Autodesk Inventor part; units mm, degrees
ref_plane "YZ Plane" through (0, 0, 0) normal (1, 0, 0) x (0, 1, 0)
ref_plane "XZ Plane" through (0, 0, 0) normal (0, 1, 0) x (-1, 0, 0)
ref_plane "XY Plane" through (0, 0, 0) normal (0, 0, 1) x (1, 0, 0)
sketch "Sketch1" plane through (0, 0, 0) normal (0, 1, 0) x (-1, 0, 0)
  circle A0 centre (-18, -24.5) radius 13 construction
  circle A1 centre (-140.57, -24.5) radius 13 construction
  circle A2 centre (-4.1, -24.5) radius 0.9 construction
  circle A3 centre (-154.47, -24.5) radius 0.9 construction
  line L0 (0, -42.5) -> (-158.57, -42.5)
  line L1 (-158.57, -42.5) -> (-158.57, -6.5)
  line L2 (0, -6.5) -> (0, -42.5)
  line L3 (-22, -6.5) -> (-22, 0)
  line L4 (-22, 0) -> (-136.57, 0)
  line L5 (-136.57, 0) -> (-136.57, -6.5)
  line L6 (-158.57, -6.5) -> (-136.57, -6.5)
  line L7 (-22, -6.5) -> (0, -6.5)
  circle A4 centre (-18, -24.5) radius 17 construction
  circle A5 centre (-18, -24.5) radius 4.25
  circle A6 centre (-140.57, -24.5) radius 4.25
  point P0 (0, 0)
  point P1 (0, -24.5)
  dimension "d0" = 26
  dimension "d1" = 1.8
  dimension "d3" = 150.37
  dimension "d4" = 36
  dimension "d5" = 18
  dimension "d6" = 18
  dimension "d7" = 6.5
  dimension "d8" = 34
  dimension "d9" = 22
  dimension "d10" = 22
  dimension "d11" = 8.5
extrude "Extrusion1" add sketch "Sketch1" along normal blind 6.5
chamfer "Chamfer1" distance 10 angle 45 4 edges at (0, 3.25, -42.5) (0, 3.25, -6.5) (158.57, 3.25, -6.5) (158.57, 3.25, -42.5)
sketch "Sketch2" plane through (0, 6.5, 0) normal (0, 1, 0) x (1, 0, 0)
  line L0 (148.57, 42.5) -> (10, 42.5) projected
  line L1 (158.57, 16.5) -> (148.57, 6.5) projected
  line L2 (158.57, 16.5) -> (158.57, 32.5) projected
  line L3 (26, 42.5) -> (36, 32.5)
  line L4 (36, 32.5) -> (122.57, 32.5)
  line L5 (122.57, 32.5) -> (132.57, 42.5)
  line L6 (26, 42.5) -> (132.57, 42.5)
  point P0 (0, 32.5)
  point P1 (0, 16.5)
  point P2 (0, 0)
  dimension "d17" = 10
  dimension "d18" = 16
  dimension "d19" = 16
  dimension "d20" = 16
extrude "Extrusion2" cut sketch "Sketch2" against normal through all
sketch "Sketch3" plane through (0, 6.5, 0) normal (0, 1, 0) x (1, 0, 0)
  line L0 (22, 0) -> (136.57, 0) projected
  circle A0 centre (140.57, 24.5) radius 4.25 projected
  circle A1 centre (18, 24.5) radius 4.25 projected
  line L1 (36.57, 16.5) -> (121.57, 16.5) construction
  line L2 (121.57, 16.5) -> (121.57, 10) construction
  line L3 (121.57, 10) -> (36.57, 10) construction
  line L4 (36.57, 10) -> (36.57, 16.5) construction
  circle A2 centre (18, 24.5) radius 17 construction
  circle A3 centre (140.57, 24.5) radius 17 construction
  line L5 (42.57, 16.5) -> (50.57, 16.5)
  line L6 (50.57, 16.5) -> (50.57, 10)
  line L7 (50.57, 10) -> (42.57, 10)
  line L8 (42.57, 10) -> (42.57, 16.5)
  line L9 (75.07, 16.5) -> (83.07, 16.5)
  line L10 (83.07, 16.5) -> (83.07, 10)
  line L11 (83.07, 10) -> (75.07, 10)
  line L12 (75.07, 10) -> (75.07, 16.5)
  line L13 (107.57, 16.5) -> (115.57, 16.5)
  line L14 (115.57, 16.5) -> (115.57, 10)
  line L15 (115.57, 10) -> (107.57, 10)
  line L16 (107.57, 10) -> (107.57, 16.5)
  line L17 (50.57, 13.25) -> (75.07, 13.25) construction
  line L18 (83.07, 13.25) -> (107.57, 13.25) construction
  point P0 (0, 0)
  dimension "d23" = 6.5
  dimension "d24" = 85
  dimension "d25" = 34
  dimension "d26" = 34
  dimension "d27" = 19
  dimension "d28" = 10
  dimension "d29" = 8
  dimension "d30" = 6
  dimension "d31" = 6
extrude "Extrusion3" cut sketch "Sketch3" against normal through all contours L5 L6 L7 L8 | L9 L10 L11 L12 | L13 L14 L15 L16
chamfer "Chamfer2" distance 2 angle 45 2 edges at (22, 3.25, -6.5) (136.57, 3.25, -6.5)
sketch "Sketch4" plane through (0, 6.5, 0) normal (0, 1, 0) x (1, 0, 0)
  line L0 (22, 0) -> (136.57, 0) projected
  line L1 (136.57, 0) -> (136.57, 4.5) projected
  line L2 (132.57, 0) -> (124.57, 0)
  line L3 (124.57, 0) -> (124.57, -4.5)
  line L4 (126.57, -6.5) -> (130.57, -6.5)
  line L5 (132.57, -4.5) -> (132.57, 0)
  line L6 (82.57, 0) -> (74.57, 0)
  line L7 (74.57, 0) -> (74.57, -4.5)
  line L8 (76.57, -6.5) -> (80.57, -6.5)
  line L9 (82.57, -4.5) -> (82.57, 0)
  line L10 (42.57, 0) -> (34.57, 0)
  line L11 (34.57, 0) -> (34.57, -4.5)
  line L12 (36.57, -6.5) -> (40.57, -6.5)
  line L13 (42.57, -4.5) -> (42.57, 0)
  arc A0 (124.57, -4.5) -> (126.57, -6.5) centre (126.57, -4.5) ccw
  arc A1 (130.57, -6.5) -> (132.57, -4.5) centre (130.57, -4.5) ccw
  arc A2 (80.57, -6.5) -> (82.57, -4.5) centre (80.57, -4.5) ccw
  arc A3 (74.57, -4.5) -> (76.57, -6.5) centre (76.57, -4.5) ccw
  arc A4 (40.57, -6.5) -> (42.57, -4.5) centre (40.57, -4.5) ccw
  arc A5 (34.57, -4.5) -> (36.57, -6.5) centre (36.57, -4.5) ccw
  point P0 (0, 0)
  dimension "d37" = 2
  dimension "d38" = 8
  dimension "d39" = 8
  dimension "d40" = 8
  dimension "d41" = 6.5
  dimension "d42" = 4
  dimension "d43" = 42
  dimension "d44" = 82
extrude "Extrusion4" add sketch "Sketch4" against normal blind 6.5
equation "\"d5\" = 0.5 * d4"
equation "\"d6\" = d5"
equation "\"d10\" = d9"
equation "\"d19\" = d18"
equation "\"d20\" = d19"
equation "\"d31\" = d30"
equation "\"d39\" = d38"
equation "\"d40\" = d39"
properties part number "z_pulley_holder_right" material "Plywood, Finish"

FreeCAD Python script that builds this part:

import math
import FreeCAD as App
import Part
import Sketcher


def edges_at(feature, points):
    """Names of the edges that pass closest to the given points."""
    edges = feature.Shape.Edges
    near = lambda p: min(range(len(edges)), key=lambda i: edges[i].distToShape(Part.Vertex(*p))[0])
    return sorted({f"Edge{near(p) + 1}" for p in points})

doc = App.newDocument("Part")
params = doc.addObject("Spreadsheet::Sheet", "Params")
for row, (alias, value) in enumerate([
    ("sketch1_diameter", "8.5 mm"),
    ("sketch1_width", "22 mm"),
    ("sketch1_height", "36 mm"),
    ("sketch1_height2", "6.5 mm"),
    ("sketch1_width2", "158.57 mm"),
    ("pad1_length", "6.5 mm"),
    ("chamfer_size", "10 mm"),
    ("sketch2_width", "106.57 mm"),
    ("sketch3_width", "8 mm"),
    ("sketch3_height", "6.5 mm"),
    ("chamfer2_size", "2 mm"),
    ("sketch4_radius", "2 mm"),
    ("sketch4_width", "8 mm"),
    ("pad2_length", "6.5 mm"),
], start=1):
    params.set(f"A{row}", alias)
    params.set(f"B{row}", "=" + value)
    params.setAlias(f"B{row}", alias)

body = doc.addObject("PartDesign::Body", "Body")

# Sketch on XZ plane
sketch1 = body.newObject("Sketcher::SketchObject", "Sketch")
sketch1.AttachmentSupport = (doc.getObject("XZ_Plane"), [""])
sketch1.MapMode = "FlatFace"
sketch1.addGeometry([
    Part.LineSegment(App.Vector(158.6, -42.5, 0), App.Vector(0, -42.5, 0)),  # 0
    Part.LineSegment(App.Vector(0, -42.5, 0), App.Vector(0, -6.5, 0)),  # 1
    Part.LineSegment(App.Vector(0, -6.5, 0), App.Vector(22, -6.5, 0)),  # 2
    Part.LineSegment(App.Vector(22, -6.5, 0), App.Vector(22, 0, 0)),  # 3
    Part.LineSegment(App.Vector(22, 0, 0), App.Vector(136.6, 0, 0)),  # 4
    Part.LineSegment(App.Vector(136.6, 0, 0), App.Vector(136.6, -6.5, 0)),  # 5
    Part.LineSegment(App.Vector(136.6, -6.5, 0), App.Vector(158.6, -6.5, 0)),  # 6
    Part.LineSegment(App.Vector(158.6, -6.5, 0), App.Vector(158.6, -42.5, 0)),  # 7
    Part.Circle(App.Vector(140.6, -24.5, 0), App.Vector(0, 0, 1), 4.2),  # 8
    Part.Circle(App.Vector(18, -24.5, 0), App.Vector(0, 0, 1), 4.2),  # 9
], False)
sketch1.addConstraint([
    Sketcher.Constraint("Coincident", 0, 2, 1, 1),
    Sketcher.Constraint("Coincident", 1, 2, 2, 1),
    Sketcher.Constraint("Coincident", 2, 2, 3, 1),
    Sketcher.Constraint("Coincident", 3, 2, 4, 1),
    Sketcher.Constraint("Coincident", 4, 2, 5, 1),
    Sketcher.Constraint("Coincident", 5, 2, 6, 1),
    Sketcher.Constraint("Coincident", 6, 2, 7, 1),
    Sketcher.Constraint("Coincident", 7, 2, 0, 1),
    Sketcher.Constraint("Horizontal", 0),
    Sketcher.Constraint("Vertical", 1),
    Sketcher.Constraint("Horizontal", 2),
    Sketcher.Constraint("Vertical", 3),
    Sketcher.Constraint("Horizontal", 4),
    Sketcher.Constraint("Vertical", 5),
    Sketcher.Constraint("Horizontal", 6),
    Sketcher.Constraint("Vertical", 7),
    Sketcher.Constraint("Equal", 8, 9),
    Sketcher.Constraint("PointOnObject", 0, 2, -2),
    Sketcher.Constraint("PointOnObject", 3, 2, -1),
    Sketcher.Constraint("Horizontal", 8, 3, 9, 3),
    Sketcher.Constraint("Horizontal", 2, 2, 5, 2),
    Sketcher.Constraint("Equal", 2, 6),
    Sketcher.Constraint("Diameter", 8, 8.5),
    Sketcher.Constraint("DistanceX", 2, 1, 2, 2, 22.0),
    Sketcher.Constraint("DistanceY", 1, 1, 1, 2, 36.0),
    Sketcher.Constraint("DistanceY", 3, 1, 3, 2, 6.5),
    Sketcher.Constraint("DistanceX", -1, 1, 9, 3, 18.0),
    Sketcher.Constraint("DistanceY", 0, 2, 9, 3, 18.0),
    Sketcher.Constraint("DistanceX", 8, 3, 6, 2, 18.0),
    Sketcher.Constraint("DistanceX", 0, 2, 0, 1, 158.57),
])
sketch1.setExpression("Constraints[22]", "Params.sketch1_diameter")
sketch1.setExpression("Constraints[23]", "Params.sketch1_width")
sketch1.setExpression("Constraints[24]", "Params.sketch1_height")
sketch1.setExpression("Constraints[25]", "Params.sketch1_height2")
sketch1.setExpression("Constraints[29]", "Params.sketch1_width2")
pad1 = body.newObject("PartDesign::Pad", "Pad")
pad1.Profile = sketch1
pad1.setExpression("Length", "Params.pad1_length")
pad1.Reversed = True
doc.recompute()

chamfer = body.newObject("PartDesign::Chamfer", "Chamfer")
chamfer.Base = (pad1, edges_at(pad1, [
    (0, 3.25, -42.5),
    (0, 3.25, -6.5),
    (158.57, 3.25, -6.5),
    (158.57, 3.25, -42.5),
]))
chamfer.setExpression("Size", "Params.chamfer_size")

# Sketch on XZ plane
sketch2 = body.newObject("Sketcher::SketchObject", "Sketch001")
sketch2.AttachmentSupport = (doc.getObject("XZ_Plane"), [""])
sketch2.MapMode = "FlatFace"
sketch2.AttachmentOffset = App.Placement(App.Vector(0, 0, -6.5), App.Rotation())
sketch2.addGeometry([
    Part.LineSegment(App.Vector(123, -32, 0), App.Vector(133, -42, 0)),
    Part.LineSegment(App.Vector(133, -42, 0), App.Vector(26, -42, 0)),
    Part.LineSegment(App.Vector(26, -42, 0), App.Vector(36, -32, 0)),
    Part.LineSegment(App.Vector(36, -32, 0), App.Vector(123, -32, 0)),
], False)
sketch2.addConstraint([
    Sketcher.Constraint("Coincident", 0, 2, 1, 1),
    Sketcher.Constraint("Coincident", 1, 2, 2, 1),
    Sketcher.Constraint("Coincident", 2, 2, 3, 1),
    Sketcher.Constraint("Coincident", 3, 2, 0, 1),
    Sketcher.Constraint("Horizontal", 1),
    Sketcher.Constraint("Horizontal", 3),
    Sketcher.Constraint("Perpendicular", 0, 2),
    Sketcher.Constraint("Equal", 0, 2),
    Sketcher.Constraint("DistanceX", 1, 2, 2, 2, 10.0),
    Sketcher.Constraint("DistanceX", -1, 1, 1, 2, 26.0),
    Sketcher.Constraint("DistanceX", 1, 2, 1, 1, 106.57),
    Sketcher.Constraint("DistanceY", 0, 2, -1, 1, 42.5),
])
sketch2.setExpression("Constraints[10]", "Params.sketch2_width")
pocket1 = body.newObject("PartDesign::Pocket", "Pocket")
pocket1.Profile = sketch2
pocket1.Type = "ThroughAll"
pocket1.Reversed = True

# Sketch on XZ plane
sketch3 = body.newObject("Sketcher::SketchObject", "Sketch002")
sketch3.AttachmentSupport = (doc.getObject("XZ_Plane"), [""])
sketch3.MapMode = "FlatFace"
sketch3.AttachmentOffset = App.Placement(App.Vector(0, 0, -6.5), App.Rotation())
sketch3.addGeometry([
    Part.LineSegment(App.Vector(51, -16, 0), App.Vector(43, -16, 0)),  # 0
    Part.LineSegment(App.Vector(43, -16, 0), App.Vector(43, -10, 0)),  # 1
    Part.LineSegment(App.Vector(43, -10, 0), App.Vector(51, -10, 0)),  # 2
    Part.LineSegment(App.Vector(51, -10, 0), App.Vector(51, -16, 0)),  # 3
    Part.LineSegment(App.Vector(83, -16, 0), App.Vector(75, -16, 0)),  # 4
    Part.LineSegment(App.Vector(75, -16, 0), App.Vector(75, -10, 0)),  # 5
    Part.LineSegment(App.Vector(75, -10, 0), App.Vector(83, -10, 0)),  # 6
    Part.LineSegment(App.Vector(83, -10, 0), App.Vector(83, -16, 0)),  # 7
    Part.LineSegment(App.Vector(116, -16, 0), App.Vector(108, -16, 0)),  # 8
    Part.LineSegment(App.Vector(108, -16, 0), App.Vector(108, -10, 0)),  # 9
    Part.LineSegment(App.Vector(108, -10, 0), App.Vector(116, -10, 0)),  # 10
    Part.LineSegment(App.Vector(116, -10, 0), App.Vector(116, -16, 0)),  # 11
], False)
sketch3.addConstraint([
    Sketcher.Constraint("Coincident", 0, 2, 1, 1),
    Sketcher.Constraint("Coincident", 1, 2, 2, 1),
    Sketcher.Constraint("Coincident", 2, 2, 3, 1),
    Sketcher.Constraint("Coincident", 3, 2, 0, 1),
    Sketcher.Constraint("Coincident", 4, 2, 5, 1),
    Sketcher.Constraint("Coincident", 5, 2, 6, 1),
    Sketcher.Constraint("Coincident", 6, 2, 7, 1),
    Sketcher.Constraint("Coincident", 7, 2, 4, 1),
    Sketcher.Constraint("Coincident", 8, 2, 9, 1),
    Sketcher.Constraint("Coincident", 9, 2, 10, 1),
    Sketcher.Constraint("Coincident", 10, 2, 11, 1),
    Sketcher.Constraint("Coincident", 11, 2, 8, 1),
    Sketcher.Constraint("Horizontal", 0),
    Sketcher.Constraint("Vertical", 1),
    Sketcher.Constraint("Horizontal", 2),
    Sketcher.Constraint("Vertical", 3),
    Sketcher.Constraint("Horizontal", 4),
    Sketcher.Constraint("Vertical", 5),
    Sketcher.Constraint("Horizontal", 6),
    Sketcher.Constraint("Vertical", 7),
    Sketcher.Constraint("Horizontal", 8),
    Sketcher.Constraint("Vertical", 9),
    Sketcher.Constraint("Horizontal", 10),
    Sketcher.Constraint("Vertical", 11),
    Sketcher.Constraint("Horizontal", 3, 2, 4, 2),
    Sketcher.Constraint("Horizontal", 2, 2, 5, 2),
    Sketcher.Constraint("Horizontal", 7, 2, 8, 2),
    Sketcher.Constraint("Horizontal", 6, 2, 9, 2),
    Sketcher.Constraint("Equal", 2, 4),
    Sketcher.Constraint("Equal", 6, 8),
    Sketcher.Constraint("DistanceX", 0, 2, 0, 1, 8.0),
    Sketcher.Constraint("DistanceY", 1, 1, 1, 2, 6.5),
    Sketcher.Constraint("DistanceY", 1, 2, -1, 1, 10.0),
    Sketcher.Constraint("DistanceX", 3, 2, 8, 2, 57.0),
    Sketcher.Constraint("DistanceX", 3, 2, 4, 2, 24.5),
    Sketcher.Constraint("DistanceX", -1, 1, 0, 2, 42.57),
])
sketch3.setExpression("Constraints[30]", "Params.sketch3_width")
sketch3.setExpression("Constraints[31]", "Params.sketch3_height")
pocket2 = body.newObject("PartDesign::Pocket", "Pocket001")
pocket2.Profile = sketch3
pocket2.Type = "ThroughAll"
pocket2.Reversed = True
doc.recompute()

chamfer2 = body.newObject("PartDesign::Chamfer", "Chamfer001")
chamfer2.Base = (pocket2, edges_at(pocket2, [(22, 3.25, -6.5), (136.57, 3.25, -6.5)]))
chamfer2.setExpression("Size", "Params.chamfer2_size")

# Sketch on XZ plane
sketch4 = body.newObject("Sketcher::SketchObject", "Sketch003")
sketch4.AttachmentSupport = (doc.getObject("XZ_Plane"), [""])
sketch4.MapMode = "FlatFace"
sketch4.AttachmentOffset = App.Placement(App.Vector(0, 0, -6.5), App.Rotation())
sketch4.addGeometry([
    Part.LineSegment(App.Vector(132.6, 0, 0), App.Vector(124.6, 0, 0)),  # 0
    Part.LineSegment(App.Vector(124.6, 0, 0), App.Vector(124.6, 4.5, 0)),  # 1
    Part.ArcOfCircle(Part.Circle(App.Vector(126.6, 4.5, 0), App.Vector(0, 0, 1), 2), math.radians(90), math.radians(180)),  # 2
    Part.LineSegment(App.Vector(126.6, 6.5, 0), App.Vector(130.6, 6.5, 0)),  # 3
    Part.ArcOfCircle(Part.Circle(App.Vector(130.6, 4.5, 0), App.Vector(0, 0, 1), 2), math.radians(0), math.radians(90)),  # 4
    Part.LineSegment(App.Vector(132.6, 4.5, 0), App.Vector(132.6, 0, 0)),  # 5
    Part.LineSegment(App.Vector(82.6, 0, 0), App.Vector(74.6, 0, 0)),  # 6
    Part.LineSegment(App.Vector(74.6, 0, 0), App.Vector(74.6, 4.5, 0)),  # 7
    Part.ArcOfCircle(Part.Circle(App.Vector(76.6, 4.5, 0), App.Vector(0, 0, 1), 2), math.radians(90), math.radians(180)),  # 8
    Part.LineSegment(App.Vector(76.6, 6.5, 0), App.Vector(80.6, 6.5, 0)),  # 9
    Part.ArcOfCircle(Part.Circle(App.Vector(80.6, 4.5, 0), App.Vector(0, 0, 1), 2), math.radians(0), math.radians(90)),  # 10
    Part.LineSegment(App.Vector(82.6, 4.5, 0), App.Vector(82.6, 0, 0)),  # 11
    Part.LineSegment(App.Vector(42.6, 0, 0), App.Vector(34.6, 0, 0)),  # 12
    Part.LineSegment(App.Vector(34.6, 0, 0), App.Vector(34.6, 4.5, 0)),  # 13
    Part.ArcOfCircle(Part.Circle(App.Vector(36.6, 4.5, 0), App.Vector(0, 0, 1), 2), math.radians(90), math.radians(180)),  # 14
    Part.LineSegment(App.Vector(36.6, 6.5, 0), App.Vector(40.6, 6.5, 0)),  # 15
    Part.ArcOfCircle(Part.Circle(App.Vector(40.6, 4.5, 0), App.Vector(0, 0, 1), 2), math.radians(0), math.radians(90)),  # 16
    Part.LineSegment(App.Vector(42.6, 4.5, 0), App.Vector(42.6, 0, 0)),  # 17
], False)
sketch4.addConstraint([
    Sketcher.Constraint("Coincident", 0, 2, 1, 1),
    Sketcher.Constraint("Tangent", 1, 2, 2, 2),
    Sketcher.Constraint("Tangent", 2, 1, 3, 1),
    Sketcher.Constraint("Tangent", 3, 2, 4, 2),
    Sketcher.Constraint("Tangent", 4, 1, 5, 1),
    Sketcher.Constraint("Coincident", 5, 2, 0, 1),
    Sketcher.Constraint("Coincident", 6, 2, 7, 1),
    Sketcher.Constraint("Tangent", 7, 2, 8, 2),
    Sketcher.Constraint("Tangent", 8, 1, 9, 1),
    Sketcher.Constraint("Tangent", 9, 2, 10, 2),
    Sketcher.Constraint("Tangent", 10, 1, 11, 1),
    Sketcher.Constraint("Coincident", 11, 2, 6, 1),
    Sketcher.Constraint("Coincident", 12, 2, 13, 1),
    Sketcher.Constraint("Tangent", 13, 2, 14, 2),
    Sketcher.Constraint("Tangent", 14, 1, 15, 1),
    Sketcher.Constraint("Tangent", 15, 2, 16, 2),
    Sketcher.Constraint("Tangent", 16, 1, 17, 1),
    Sketcher.Constraint("Coincident", 17, 2, 12, 1),
    Sketcher.Constraint("Horizontal", 0),
    Sketcher.Constraint("Vertical", 1),
    Sketcher.Constraint("Horizontal", 3),
    Sketcher.Constraint("Vertical", 5),
    Sketcher.Constraint("Horizontal", 6),
    Sketcher.Constraint("Vertical", 7),
    Sketcher.Constraint("Horizontal", 9),
    Sketcher.Constraint("Vertical", 11),
    Sketcher.Constraint("Horizontal", 12),
    Sketcher.Constraint("Vertical", 13),
    Sketcher.Constraint("Horizontal", 15),
    Sketcher.Constraint("Vertical", 17),
    Sketcher.Constraint("Equal", 2, 4),
    Sketcher.Constraint("Equal", 4, 8),
    Sketcher.Constraint("Equal", 8, 10),
    Sketcher.Constraint("Equal", 10, 14),
    Sketcher.Constraint("Equal", 14, 16),
    Sketcher.Constraint("PointOnObject", 0, 2, -1),
    Sketcher.Constraint("PointOnObject", 6, 2, -1),
    Sketcher.Constraint("PointOnObject", 12, 2, -1),
    Sketcher.Constraint("Horizontal", 4, 3, 8, 3),
    Sketcher.Constraint("Horizontal", 10, 3, 14, 3),
    Sketcher.Constraint("Equal", 0, 6),
    Sketcher.Constraint("Equal", 6, 12),
    Sketcher.Constraint("Radius", 2, 2.0),
    Sketcher.Constraint("DistanceX", 0, 2, 0, 1, 8.0),
    Sketcher.Constraint("DistanceX", 12, 2, 8, 3, 42.0),
    Sketcher.Constraint("DistanceY", -1, 1, 2, 1, 6.5),
    Sketcher.Constraint("DistanceX", 8, 3, 2, 3, 50.0),
    Sketcher.Constraint("DistanceX", -1, 1, 2, 3, 126.57),
])
sketch4.setExpression("Constraints[42]", "Params.sketch4_radius")
sketch4.setExpression("Constraints[43]", "Params.sketch4_width")
pad2 = body.newObject("PartDesign::Pad", "Pad001")
pad2.Profile = sketch4
pad2.setExpression("Length", "Params.pad2_length")

doc.recompute()
